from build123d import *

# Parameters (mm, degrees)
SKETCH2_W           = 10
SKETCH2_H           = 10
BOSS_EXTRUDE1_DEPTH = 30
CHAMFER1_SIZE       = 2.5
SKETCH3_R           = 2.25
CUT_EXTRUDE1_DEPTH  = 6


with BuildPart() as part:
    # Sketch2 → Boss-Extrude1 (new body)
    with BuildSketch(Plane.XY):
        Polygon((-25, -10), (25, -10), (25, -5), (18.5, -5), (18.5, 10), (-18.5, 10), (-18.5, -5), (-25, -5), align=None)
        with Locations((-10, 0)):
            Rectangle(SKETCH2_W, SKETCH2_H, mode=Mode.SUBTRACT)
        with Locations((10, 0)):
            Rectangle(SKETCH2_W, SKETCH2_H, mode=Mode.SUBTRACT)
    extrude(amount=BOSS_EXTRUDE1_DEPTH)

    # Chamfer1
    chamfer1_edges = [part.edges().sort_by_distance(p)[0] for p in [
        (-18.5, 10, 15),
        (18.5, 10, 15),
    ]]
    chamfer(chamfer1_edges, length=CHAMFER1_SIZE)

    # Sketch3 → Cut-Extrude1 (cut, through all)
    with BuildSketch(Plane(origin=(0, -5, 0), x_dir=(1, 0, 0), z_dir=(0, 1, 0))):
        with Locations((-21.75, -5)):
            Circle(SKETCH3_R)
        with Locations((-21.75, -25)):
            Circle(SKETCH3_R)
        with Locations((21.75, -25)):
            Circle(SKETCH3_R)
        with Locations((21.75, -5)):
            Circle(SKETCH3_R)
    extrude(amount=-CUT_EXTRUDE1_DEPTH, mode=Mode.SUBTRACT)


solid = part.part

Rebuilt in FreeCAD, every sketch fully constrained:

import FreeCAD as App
import Part
import Sketcher

V = App.Vector


def edges_at(feature, points):
    """Names of the edges that pass closest to the given points."""
    edges = feature.Shape.Edges
    near = lambda p: min(range(len(edges)), key=lambda i: edges[i].distToShape(Part.Vertex(*p))[0])
    return sorted({f"Edge{near(p) + 1}" for p in points})


def add_polygon(sketch, points):
    """Adds a closed chain of lines whose ends are joined by coincident constraints."""
    first, n = sketch.GeometryCount, len(points)
    for a, b in zip(points, points[1:] + points[:1]):
        sketch.addGeometry(Part.LineSegment(App.Vector(*a, 0), App.Vector(*b, 0)), False)
    for i in range(n):
        sketch.addConstraint(Sketcher.Constraint("Coincident", first + i, 2, first + (i + 1) % n, 1))

doc = App.newDocument("Part")
body = doc.addObject("PartDesign::Body", "Body")

sketch1 = doc.addObject("Sketcher::SketchObject", "Sketch")
body.addObject(sketch1)
sketch1.AttachmentSupport = (doc.XY_Plane, [""])
sketch1.MapMode = "FlatFace"
add_polygon(sketch1, [(-25, -10), (25, -10), (25, -5), (18.5, -5), (18.5, 10), (-18.5, 10), (-18.5, -5), (-25, -5)])
add_polygon(sketch1, [(-5, -5), (-15, -5), (-15, 5), (-5, 5)])
add_polygon(sketch1, [(15, -5), (5, -5), (5, 5), (15, 5)])
sketch1.addConstraint(Sketcher.Constraint("Horizontal", 0))
sketch1.addConstraint(Sketcher.Constraint("Vertical", 1))
sketch1.addConstraint(Sketcher.Constraint("Horizontal", 2))
sketch1.addConstraint(Sketcher.Constraint("Vertical", 3))
sketch1.addConstraint(Sketcher.Constraint("Horizontal", 4))
sketch1.addConstraint(Sketcher.Constraint("Vertical", 5))
sketch1.addConstraint(Sketcher.Constraint("Horizontal", 6))
sketch1.addConstraint(Sketcher.Constraint("Vertical", 7))
sketch1.addConstraint(Sketcher.Constraint("Horizontal", 8))
sketch1.addConstraint(Sketcher.Constraint("Vertical", 9))
sketch1.addConstraint(Sketcher.Constraint("Horizontal", 10))
sketch1.addConstraint(Sketcher.Constraint("Vertical", 11))
sketch1.addConstraint(Sketcher.Constraint("Horizontal", 12))
sketch1.addConstraint(Sketcher.Constraint("Vertical", 13))
sketch1.addConstraint(Sketcher.Constraint("Horizontal", 14))
sketch1.addConstraint(Sketcher.Constraint("Vertical", 15))
sketch1.addConstraint(Sketcher.Constraint("Symmetric", 10, 2, 12, 2, -1, 1))
sketch1.addConstraint(Sketcher.Constraint("Symmetric", 8, 2, 14, 2, -1, 1))
sketch1.addConstraint(Sketcher.Constraint("Symmetric", 2, 2, 5, 2, -2))
sketch1.addConstraint(Sketcher.Constraint("Horizontal", 6, 2, 8, 2))
sketch1.addConstraint(Sketcher.Constraint("Horizontal", 11, 2, 12, 2))
sketch1.addConstraint(Sketcher.Constraint("Equal", 2, 6))
sketch1.addConstraint(Sketcher.Constraint("Equal", 14, 9))
sketch1.addConstraint(Sketcher.Constraint("DistanceX", 0, 1, 0, 2, 50.0))
sketch1.addConstraint(Sketcher.Constraint("DistanceX", 4, 2, 4, 1, 37.0))
sketch1.addConstraint(Sketcher.Constraint("DistanceX", 8, 2, 8, 1, 10.0))
sketch1.addConstraint(Sketcher.Constraint("DistanceY", 1, 1, 1, 2, 5.0))
sketch1.addConstraint(Sketcher.Constraint("DistanceY", 3, 1, 3, 2, 15.0))
sketch1.addConstraint(Sketcher.Constraint("DistanceX", 8, 2, -1, 1, 15.0))
pad1 = doc.addObject("PartDesign::Pad", "Pad")
body.addObject(pad1)
pad1.Profile = sketch1
pad1.Length = 30
doc.recompute()

chamfer = doc.addObject("PartDesign::Chamfer", "Chamfer")
body.addObject(chamfer)
chamfer.Base = (pad1, edges_at(pad1, [(-18.5, 10, 15), (18.5, 10, 15)]))
chamfer.Size = 2.5

sketch2 = doc.addObject("Sketcher::SketchObject", "Sketch001")
body.addObject(sketch2)
sketch2.AttachmentSupport = (doc.XZ_Plane, [""])
sketch2.MapMode = "FlatFace"
sketch2.AttachmentOffset = App.Placement(V(0, 0, 5), App.Rotation())
sketch2.addGeometry(Part.Circle(V(-21.75, 5, 0), V(0, 0, 1), 2.25), False)
sketch2.addGeometry(Part.Circle(V(-21.75, 25, 0), V(0, 0, 1), 2.25), False)
sketch2.addGeometry(Part.Circle(V(21.75, 25, 0), V(0, 0, 1), 2.25), False)
sketch2.addGeometry(Part.Circle(V(21.75, 5, 0), V(0, 0, 1), 2.25), False)
sketch2.addConstraint(Sketcher.Constraint("Equal", 0, 1))
sketch2.addConstraint(Sketcher.Constraint("Equal", 1, 2))
sketch2.addConstraint(Sketcher.Constraint("Equal", 2, 3))
sketch2.addConstraint(Sketcher.Constraint("Symmetric", 1, 3, 2, 3, -2))
sketch2.addConstraint(Sketcher.Constraint("Symmetric", 0, 3, 3, 3, -2))
sketch2.addConstraint(Sketcher.Constraint("Vertical", 0, 3, 1, 3))
sketch2.addConstraint(Sketcher.Constraint("Diameter", 0, 4.5))
sketch2.addConstraint(Sketcher.Constraint("DistanceY", -1, 1, 0, 3, 5.0))
sketch2.addConstraint(Sketcher.Constraint("DistanceY", -1, 1, 1, 3, 25.0))
sketch2.addConstraint(Sketcher.Constraint("DistanceX", 1, 3, 2, 3, 43.5))
pocket1 = doc.addObject("PartDesign::Pocket", "Pocket")
body.addObject(pocket1)
pocket1.Profile = sketch2
pocket1.Type = "ThroughAll"
pocket1.Reversed = True

doc.recompute()
